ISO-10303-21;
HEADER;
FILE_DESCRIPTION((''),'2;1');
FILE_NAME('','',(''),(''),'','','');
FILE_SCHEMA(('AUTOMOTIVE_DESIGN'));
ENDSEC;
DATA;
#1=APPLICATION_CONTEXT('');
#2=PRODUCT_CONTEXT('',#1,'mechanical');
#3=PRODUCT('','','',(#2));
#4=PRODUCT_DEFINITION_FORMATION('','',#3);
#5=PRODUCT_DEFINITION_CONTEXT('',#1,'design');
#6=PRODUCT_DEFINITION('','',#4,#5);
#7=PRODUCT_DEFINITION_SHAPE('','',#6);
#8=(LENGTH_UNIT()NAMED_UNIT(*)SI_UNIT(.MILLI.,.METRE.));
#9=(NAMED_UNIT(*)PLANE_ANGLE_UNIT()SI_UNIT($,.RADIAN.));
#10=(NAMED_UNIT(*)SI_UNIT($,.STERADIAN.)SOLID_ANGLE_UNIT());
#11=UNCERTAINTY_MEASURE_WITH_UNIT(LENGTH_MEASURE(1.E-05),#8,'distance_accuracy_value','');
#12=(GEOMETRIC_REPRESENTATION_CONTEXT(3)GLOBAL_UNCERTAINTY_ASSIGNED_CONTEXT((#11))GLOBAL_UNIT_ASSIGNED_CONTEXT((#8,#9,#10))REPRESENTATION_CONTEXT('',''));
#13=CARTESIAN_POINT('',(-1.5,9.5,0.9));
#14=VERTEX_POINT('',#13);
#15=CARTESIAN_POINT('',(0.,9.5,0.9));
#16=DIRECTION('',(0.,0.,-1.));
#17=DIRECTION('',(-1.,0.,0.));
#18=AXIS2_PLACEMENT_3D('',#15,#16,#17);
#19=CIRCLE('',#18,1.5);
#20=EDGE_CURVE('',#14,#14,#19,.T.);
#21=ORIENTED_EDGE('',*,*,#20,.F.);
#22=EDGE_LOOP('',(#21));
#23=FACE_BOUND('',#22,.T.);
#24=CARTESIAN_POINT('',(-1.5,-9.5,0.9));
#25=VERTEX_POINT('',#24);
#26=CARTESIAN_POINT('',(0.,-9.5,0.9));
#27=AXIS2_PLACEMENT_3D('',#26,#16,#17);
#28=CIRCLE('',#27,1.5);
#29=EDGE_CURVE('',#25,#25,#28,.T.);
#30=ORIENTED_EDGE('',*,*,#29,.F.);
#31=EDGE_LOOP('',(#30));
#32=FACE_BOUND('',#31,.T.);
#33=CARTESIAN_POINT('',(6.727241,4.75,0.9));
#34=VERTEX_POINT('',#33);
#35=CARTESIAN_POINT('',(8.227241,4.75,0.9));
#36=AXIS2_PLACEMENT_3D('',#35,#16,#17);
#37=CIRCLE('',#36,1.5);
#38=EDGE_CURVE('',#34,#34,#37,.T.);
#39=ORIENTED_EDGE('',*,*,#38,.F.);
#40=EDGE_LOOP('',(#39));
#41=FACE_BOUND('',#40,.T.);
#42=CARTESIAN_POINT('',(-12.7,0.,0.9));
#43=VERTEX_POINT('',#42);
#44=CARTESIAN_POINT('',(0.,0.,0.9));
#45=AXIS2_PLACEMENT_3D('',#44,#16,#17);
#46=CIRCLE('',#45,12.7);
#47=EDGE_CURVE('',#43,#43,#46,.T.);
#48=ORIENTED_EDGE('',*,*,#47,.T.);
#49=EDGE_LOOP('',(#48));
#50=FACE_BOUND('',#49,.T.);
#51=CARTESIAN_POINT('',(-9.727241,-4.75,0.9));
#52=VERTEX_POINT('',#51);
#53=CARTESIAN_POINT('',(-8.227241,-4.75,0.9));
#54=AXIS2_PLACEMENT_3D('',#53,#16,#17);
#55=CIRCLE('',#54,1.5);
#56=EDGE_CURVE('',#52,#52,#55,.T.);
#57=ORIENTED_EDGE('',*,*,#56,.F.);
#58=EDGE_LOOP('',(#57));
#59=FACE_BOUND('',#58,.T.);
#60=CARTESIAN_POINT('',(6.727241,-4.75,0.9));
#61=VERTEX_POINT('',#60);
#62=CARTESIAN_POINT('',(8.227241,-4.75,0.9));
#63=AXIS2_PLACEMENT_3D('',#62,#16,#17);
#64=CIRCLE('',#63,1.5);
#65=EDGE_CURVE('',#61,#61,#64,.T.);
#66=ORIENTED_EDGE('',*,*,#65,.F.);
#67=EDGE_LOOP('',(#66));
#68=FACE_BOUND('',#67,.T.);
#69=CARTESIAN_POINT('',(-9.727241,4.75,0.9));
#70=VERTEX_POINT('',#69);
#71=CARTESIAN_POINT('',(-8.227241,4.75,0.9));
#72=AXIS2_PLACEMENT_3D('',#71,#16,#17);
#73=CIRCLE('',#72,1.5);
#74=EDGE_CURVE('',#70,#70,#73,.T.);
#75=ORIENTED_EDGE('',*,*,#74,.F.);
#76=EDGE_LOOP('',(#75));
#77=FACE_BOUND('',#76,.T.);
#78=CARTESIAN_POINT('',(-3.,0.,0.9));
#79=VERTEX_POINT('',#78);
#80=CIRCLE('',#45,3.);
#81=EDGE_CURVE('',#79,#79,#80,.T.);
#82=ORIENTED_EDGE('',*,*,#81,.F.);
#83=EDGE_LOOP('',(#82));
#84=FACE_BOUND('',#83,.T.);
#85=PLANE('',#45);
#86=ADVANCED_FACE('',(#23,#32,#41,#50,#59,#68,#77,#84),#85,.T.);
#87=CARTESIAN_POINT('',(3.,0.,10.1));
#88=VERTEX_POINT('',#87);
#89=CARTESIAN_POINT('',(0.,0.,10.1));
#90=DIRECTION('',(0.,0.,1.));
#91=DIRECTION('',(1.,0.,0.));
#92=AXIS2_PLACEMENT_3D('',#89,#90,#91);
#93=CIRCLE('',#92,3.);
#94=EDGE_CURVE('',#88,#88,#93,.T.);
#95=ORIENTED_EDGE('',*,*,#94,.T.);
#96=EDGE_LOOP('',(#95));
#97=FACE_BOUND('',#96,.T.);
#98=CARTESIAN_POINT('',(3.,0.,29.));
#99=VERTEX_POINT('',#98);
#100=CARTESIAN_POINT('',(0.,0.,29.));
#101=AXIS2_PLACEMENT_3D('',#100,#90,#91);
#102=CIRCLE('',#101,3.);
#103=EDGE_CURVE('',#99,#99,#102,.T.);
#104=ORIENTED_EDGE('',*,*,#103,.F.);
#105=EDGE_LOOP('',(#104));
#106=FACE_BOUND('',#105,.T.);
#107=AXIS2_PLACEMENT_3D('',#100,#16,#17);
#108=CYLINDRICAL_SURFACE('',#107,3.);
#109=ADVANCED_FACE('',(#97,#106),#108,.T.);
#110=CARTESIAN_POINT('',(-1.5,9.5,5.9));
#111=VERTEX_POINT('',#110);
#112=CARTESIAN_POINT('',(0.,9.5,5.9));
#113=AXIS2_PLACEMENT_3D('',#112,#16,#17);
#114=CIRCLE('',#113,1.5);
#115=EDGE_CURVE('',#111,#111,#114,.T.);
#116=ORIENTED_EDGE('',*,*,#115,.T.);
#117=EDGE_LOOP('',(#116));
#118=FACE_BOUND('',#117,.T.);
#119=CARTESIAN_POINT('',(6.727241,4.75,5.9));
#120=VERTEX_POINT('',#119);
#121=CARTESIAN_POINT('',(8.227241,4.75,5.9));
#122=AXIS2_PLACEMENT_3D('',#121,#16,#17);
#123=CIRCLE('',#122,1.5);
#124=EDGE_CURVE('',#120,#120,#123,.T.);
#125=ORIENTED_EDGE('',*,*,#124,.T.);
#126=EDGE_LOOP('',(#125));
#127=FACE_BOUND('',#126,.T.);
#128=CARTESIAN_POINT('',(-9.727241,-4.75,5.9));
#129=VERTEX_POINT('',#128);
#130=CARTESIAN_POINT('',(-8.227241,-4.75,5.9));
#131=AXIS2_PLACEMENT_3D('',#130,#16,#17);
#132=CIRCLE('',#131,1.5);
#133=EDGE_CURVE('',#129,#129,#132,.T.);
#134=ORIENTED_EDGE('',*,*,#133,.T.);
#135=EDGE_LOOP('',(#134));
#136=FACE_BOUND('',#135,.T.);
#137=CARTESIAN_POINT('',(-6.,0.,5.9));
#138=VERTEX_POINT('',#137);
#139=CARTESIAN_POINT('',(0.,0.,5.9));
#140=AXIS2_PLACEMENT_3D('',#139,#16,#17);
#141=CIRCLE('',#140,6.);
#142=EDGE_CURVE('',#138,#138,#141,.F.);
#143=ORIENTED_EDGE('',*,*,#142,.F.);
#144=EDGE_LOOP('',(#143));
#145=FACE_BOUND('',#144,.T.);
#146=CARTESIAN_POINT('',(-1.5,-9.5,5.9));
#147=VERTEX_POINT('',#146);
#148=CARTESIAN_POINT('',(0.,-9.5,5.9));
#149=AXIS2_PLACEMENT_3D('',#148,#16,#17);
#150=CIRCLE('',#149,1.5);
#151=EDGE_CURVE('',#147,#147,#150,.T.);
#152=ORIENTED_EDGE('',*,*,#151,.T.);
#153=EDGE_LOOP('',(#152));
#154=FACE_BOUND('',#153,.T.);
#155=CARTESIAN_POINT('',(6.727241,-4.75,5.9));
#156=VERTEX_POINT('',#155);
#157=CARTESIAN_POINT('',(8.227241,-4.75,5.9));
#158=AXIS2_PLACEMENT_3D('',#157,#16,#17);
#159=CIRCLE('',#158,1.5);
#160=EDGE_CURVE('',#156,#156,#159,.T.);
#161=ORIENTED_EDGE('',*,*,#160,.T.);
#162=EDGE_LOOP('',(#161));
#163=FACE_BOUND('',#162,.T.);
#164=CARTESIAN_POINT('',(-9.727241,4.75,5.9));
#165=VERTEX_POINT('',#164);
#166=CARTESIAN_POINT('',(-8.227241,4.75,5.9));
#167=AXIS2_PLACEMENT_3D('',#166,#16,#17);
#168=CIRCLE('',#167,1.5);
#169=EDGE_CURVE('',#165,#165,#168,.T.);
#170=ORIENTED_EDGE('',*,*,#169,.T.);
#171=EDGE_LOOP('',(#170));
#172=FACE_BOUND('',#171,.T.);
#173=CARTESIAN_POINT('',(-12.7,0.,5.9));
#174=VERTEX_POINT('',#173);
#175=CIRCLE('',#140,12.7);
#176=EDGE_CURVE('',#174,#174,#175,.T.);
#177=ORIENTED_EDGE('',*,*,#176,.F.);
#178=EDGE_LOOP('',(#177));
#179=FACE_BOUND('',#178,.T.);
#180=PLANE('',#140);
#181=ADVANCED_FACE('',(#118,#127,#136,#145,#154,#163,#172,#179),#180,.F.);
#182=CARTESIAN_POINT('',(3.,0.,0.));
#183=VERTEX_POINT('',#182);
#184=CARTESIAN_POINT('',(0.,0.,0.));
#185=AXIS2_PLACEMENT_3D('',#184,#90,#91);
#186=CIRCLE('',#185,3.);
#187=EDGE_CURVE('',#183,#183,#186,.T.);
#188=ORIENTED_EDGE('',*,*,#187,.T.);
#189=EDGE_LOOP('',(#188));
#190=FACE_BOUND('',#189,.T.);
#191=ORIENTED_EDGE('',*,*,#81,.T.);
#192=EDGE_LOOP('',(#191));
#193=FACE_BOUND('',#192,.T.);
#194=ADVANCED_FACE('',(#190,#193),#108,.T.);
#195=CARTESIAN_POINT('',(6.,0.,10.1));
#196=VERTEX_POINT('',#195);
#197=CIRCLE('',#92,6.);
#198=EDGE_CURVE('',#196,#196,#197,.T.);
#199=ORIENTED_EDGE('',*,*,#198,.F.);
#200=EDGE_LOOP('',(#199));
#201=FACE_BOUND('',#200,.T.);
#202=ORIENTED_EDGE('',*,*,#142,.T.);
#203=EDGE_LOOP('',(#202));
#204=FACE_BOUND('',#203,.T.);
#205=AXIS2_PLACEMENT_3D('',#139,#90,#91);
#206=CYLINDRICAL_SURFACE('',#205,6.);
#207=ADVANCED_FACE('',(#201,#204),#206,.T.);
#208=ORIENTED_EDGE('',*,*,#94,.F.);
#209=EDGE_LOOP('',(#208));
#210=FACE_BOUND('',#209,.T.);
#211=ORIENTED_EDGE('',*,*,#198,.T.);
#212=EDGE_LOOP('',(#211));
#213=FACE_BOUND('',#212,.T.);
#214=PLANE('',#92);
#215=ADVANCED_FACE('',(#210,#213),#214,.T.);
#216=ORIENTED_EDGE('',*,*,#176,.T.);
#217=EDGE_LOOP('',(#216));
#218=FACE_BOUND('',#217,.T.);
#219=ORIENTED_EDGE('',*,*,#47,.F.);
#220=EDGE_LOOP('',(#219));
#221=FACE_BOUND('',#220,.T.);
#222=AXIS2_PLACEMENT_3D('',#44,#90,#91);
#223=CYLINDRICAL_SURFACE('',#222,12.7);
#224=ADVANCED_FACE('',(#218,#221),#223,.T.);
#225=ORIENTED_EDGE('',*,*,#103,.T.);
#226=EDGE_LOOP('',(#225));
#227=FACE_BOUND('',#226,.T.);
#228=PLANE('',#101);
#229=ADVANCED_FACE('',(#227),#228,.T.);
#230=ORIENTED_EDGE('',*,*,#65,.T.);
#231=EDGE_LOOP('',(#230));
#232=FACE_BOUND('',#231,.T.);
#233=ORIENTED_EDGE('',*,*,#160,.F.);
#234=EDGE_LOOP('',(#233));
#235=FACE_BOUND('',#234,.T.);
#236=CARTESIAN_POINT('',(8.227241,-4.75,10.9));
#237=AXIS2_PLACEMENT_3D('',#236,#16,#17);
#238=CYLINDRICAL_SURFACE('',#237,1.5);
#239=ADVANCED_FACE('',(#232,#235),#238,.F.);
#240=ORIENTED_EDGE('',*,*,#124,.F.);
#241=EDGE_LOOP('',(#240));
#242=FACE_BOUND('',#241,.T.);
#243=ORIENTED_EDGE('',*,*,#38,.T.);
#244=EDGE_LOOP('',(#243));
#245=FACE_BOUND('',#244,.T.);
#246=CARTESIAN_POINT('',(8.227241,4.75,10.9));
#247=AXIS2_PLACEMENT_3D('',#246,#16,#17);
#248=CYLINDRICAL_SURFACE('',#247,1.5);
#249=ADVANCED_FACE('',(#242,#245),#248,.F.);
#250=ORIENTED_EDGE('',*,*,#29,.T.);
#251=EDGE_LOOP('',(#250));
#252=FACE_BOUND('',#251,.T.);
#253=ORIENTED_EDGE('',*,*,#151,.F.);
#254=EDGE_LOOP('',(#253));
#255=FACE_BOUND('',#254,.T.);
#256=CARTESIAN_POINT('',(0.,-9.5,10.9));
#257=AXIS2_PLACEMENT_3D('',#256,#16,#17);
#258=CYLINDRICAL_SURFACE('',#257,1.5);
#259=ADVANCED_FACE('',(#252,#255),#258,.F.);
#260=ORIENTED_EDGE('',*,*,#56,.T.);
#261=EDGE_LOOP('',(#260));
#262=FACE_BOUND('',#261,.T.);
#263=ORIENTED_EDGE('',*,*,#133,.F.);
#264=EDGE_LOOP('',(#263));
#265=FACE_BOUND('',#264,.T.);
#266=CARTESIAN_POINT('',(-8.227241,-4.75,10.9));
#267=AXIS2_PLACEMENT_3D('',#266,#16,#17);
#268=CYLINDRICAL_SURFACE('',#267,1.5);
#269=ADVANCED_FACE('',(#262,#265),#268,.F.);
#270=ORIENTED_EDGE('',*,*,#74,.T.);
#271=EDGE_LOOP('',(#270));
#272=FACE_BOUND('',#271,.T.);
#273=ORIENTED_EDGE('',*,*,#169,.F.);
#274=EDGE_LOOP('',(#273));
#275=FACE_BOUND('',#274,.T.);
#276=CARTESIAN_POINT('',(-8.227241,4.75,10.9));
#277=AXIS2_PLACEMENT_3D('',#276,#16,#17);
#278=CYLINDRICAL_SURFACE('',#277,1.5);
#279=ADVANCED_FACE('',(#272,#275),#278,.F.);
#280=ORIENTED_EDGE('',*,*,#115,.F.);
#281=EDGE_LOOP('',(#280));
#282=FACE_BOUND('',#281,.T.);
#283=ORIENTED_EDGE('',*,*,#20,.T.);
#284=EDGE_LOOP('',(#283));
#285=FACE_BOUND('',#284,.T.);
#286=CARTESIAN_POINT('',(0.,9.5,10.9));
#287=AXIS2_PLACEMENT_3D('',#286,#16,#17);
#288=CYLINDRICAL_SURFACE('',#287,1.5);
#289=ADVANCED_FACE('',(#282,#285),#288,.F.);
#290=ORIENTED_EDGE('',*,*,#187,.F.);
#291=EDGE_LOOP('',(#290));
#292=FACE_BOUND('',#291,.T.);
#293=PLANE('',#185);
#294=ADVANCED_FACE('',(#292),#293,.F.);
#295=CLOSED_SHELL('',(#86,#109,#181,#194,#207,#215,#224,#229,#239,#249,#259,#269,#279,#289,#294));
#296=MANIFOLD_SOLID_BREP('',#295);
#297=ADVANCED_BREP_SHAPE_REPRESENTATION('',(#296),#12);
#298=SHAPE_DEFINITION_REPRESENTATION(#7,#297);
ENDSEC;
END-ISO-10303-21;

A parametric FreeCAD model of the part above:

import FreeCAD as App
import Part
import Sketcher

V = App.Vector

doc = App.newDocument("Part")
body = doc.addObject("PartDesign::Body", "Body")

# Sketch on XY plane
sketch1 = body.newObject("Sketcher::SketchObject", "Sketch")
sketch1.AttachmentSupport = (doc.getObject("XY_Plane"), [""])
sketch1.MapMode = "FlatFace"
sketch1.addGeometry(Part.Circle(V(0, 0, 0), V(0, 0, 1), 3), False)
sketch1.addConstraint([
    Sketcher.Constraint("Coincident", 0, 3, -1, 1),
    Sketcher.Constraint("Diameter", 0, 6.0),
])
pad1 = body.newObject("PartDesign::Pad", "Pad")
pad1.Profile = sketch1
pad1.Length = 29

# Sketch on XY plane
sketch2 = body.newObject("Sketcher::SketchObject", "Sketch001")
sketch2.AttachmentSupport = (doc.getObject("XY_Plane"), [""])
sketch2.MapMode = "FlatFace"
sketch2.AttachmentOffset = App.Placement(V(0, 0, 8), App.Rotation())
sketch2.addGeometry(Part.Circle(V(0, 0, 0), V(0, 0, 1), 6), False)
sketch2.addConstraint([
    Sketcher.Constraint("Coincident", 0, 3, -1, 1),
    Sketcher.Constraint("Diameter", 0, 12.0),
])
pad2 = body.newObject("PartDesign::Pad", "Pad001")
pad2.Profile = sketch2
pad2.Length = 2.1
pad2.Reversed = True

# Sketch on XY plane
sketch3 = body.newObject("Sketcher::SketchObject", "Sketch002")
sketch3.AttachmentSupport = (doc.getObject("XY_Plane"), [""])
sketch3.MapMode = "FlatFace"
sketch3.AttachmentOffset = App.Placement(V(0, 0, 5.9), App.Rotation())
sketch3.addGeometry(Part.Circle(V(0, 0, 0), V(0, 0, 1), 13), False)
sketch3.addConstraint([
    Sketcher.Constraint("Coincident", 0, 3, -1, 1),
    Sketcher.Constraint("Diameter", 0, 25.4),
])
pad3 = body.newObject("PartDesign::Pad", "Pad002")
pad3.Profile = sketch3
pad3.Length = 5
pad3.Reversed = True

# Sketch on XY plane
sketch4 = body.newObject("Sketcher::SketchObject", "Sketch003")
sketch4.AttachmentSupport = (doc.getObject("XY_Plane"), [""])
sketch4.MapMode = "FlatFace"
sketch4.AttachmentOffset = App.Placement(V(0, 0, 8), App.Rotation())
sketch4.addGeometry(Part.Circle(V(0, 0, 0), V(0, 0, 1), 6), False)
sketch4.addConstraint([
    Sketcher.Constraint("Coincident", 0, 3, -1, 1),
    Sketcher.Constraint("Diameter", 0, 12.0),
])
pad4 = body.newObject("PartDesign::Pad", "Pad003")
pad4.Profile = sketch4
pad4.Length = 2.1

# Sketch on XY plane
sketch5 = body.newObject("Sketcher::SketchObject", "Sketch004")
sketch5.AttachmentSupport = (doc.getObject("XY_Plane"), [""])
sketch5.MapMode = "FlatFace"
sketch5.AttachmentOffset = App.Placement(V(0, 0, 0.9), App.Rotation())
sketch5.addGeometry([
    Part.Circle(V(-8.2, 4.8, 0), V(0, 0, 1), 1.5),  # 0
    Part.Circle(V(0, 9.5, 0), V(0, 0, 1), 1.5),  # 1
    Part.Circle(V(-8.2, -4.8, 0), V(0, 0, 1), 1.5),  # 2
    Part.Circle(V(0, -9.5, 0), V(0, 0, 1), 1.5),  # 3
    Part.Circle(V(8.2, -4.8, 0), V(0, 0, 1), 1.5),  # 4
    Part.Circle(V(8.2, 4.8, 0), V(0, 0, 1), 1.5),  # 5
], False)
sketch5.addConstraint([
    Sketcher.Constraint("Equal", 0, 1),
    Sketcher.Constraint("Equal", 1, 2),
    Sketcher.Constraint("Equal", 2, 3),
    Sketcher.Constraint("Equal", 3, 4),
    Sketcher.Constraint("Equal", 4, 5),
    Sketcher.Constraint("Symmetric", 1, 3, 3, 3, -1, 1),
    Sketcher.Constraint("Symmetric", 0, 3, 4, 3, -1, 1),
    Sketcher.Constraint("Symmetric", 2, 3, 5, 3, -1, 1),
    Sketcher.Constraint("Symmetric", 2, 3, 4, 3, -2),
    Sketcher.Constraint("PointOnObject", 1, 3, -2),
    Sketcher.Constraint("Diameter", 0, 3.0),
    Sketcher.Constraint("DistanceY", 3, 3, 1, 3, 19.0),
    Sketcher.Constraint("DistanceY", 2, 3, 0, 3, 9.5),
    Sketcher.Constraint("DistanceX", 0, 3, -1, 1, 8.227241),
])
pocket1 = body.newObject("PartDesign::Pocket", "Pocket")
pocket1.Profile = sketch5
pocket1.Length = 10
pocket1.Reversed = True

doc.recompute()
